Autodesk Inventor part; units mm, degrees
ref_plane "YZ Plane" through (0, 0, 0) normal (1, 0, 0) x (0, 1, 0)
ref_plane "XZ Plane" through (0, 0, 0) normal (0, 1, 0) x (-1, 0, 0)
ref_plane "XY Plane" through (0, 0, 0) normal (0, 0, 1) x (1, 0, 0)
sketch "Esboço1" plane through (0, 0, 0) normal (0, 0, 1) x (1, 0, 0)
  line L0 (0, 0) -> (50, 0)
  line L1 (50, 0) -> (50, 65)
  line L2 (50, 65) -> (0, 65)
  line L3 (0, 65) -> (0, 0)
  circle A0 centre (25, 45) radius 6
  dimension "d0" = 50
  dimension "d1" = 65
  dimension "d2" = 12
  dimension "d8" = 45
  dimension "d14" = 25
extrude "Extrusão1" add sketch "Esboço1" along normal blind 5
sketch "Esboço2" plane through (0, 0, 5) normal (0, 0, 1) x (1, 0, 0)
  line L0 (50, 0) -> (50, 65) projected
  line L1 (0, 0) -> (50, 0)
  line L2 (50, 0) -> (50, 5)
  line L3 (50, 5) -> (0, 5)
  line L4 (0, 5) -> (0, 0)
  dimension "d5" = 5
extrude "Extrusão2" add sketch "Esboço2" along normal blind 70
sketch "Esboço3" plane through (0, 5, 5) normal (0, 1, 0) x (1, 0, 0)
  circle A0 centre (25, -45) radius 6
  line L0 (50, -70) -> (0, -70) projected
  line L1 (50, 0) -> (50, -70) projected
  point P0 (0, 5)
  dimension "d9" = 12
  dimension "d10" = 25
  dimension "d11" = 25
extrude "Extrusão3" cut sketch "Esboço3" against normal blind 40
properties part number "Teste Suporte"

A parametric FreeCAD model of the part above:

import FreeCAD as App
import Part
import Sketcher


def add_polygon(sketch, points):
    """Adds a closed chain of lines whose ends are joined by coincident constraints."""
    first, n = sketch.GeometryCount, len(points)
    for a, b in zip(points, points[1:] + points[:1]):
        sketch.addGeometry(Part.LineSegment(App.Vector(*a, 0), App.Vector(*b, 0)), False)
    for i in range(n):
        sketch.addConstraint(Sketcher.Constraint("Coincident", first + i, 2, first + (i + 1) % n, 1))

doc = App.newDocument("Part")
body = doc.addObject("PartDesign::Body", "Body")

# Sketch on XY plane
sketch1 = body.newObject("Sketcher::SketchObject", "Sketch")
sketch1.AttachmentSupport = (doc.getObject("XY_Plane"), [""])
sketch1.MapMode = "FlatFace"
add_polygon(sketch1, [(0, 65), (0, 0), (50, 0), (50, 65)])  # lines 0-3
sketch1.addGeometry(Part.Circle(App.Vector(25, 45, 0), App.Vector(0, 0, 1), 6), False)  # 4
sketch1.addConstraint([
    Sketcher.Constraint("Vertical", 0),
    Sketcher.Constraint("Horizontal", 1),
    Sketcher.Constraint("Vertical", 2),
    Sketcher.Constraint("Horizontal", 3),
    Sketcher.Constraint("Coincident", 0, 2, -1, 1),
    Sketcher.Constraint("Diameter", 4, 12.0),
    Sketcher.Constraint("DistanceX", 1, 1, 1, 2, 50.0),
    Sketcher.Constraint("DistanceY", 0, 2, 0, 1, 65.0),
    Sketcher.Constraint("DistanceX", -1, 1, 4, 3, 25.0),
    Sketcher.Constraint("DistanceY", -1, 1, 4, 3, 45.0),
])
pad1 = body.newObject("PartDesign::Pad", "Pad")
pad1.Profile = sketch1
pad1.Length = 5

# Sketch on XY plane
sketch2 = body.newObject("Sketcher::SketchObject", "Sketch001")
sketch2.AttachmentSupport = (doc.getObject("XY_Plane"), [""])
sketch2.MapMode = "FlatFace"
sketch2.AttachmentOffset = App.Placement(App.Vector(0, 0, 5), App.Rotation())
add_polygon(sketch2, [(0, 0), (50, 0), (50, 5), (0, 5)])  # lines 0-3
sketch2.addConstraint([
    Sketcher.Constraint("Horizontal", 0),
    Sketcher.Constraint("Vertical", 1),
    Sketcher.Constraint("Horizontal", 2),
    Sketcher.Constraint("Vertical", 3),
    Sketcher.Constraint("Coincident", 3, 2, -1, 1),
    Sketcher.Constraint("DistanceY", 1, 1, 1, 2, 5.0),
    Sketcher.Constraint("DistanceX", 0, 1, 0, 2, 50.0),
])
pad2 = body.newObject("PartDesign::Pad", "Pad001")
pad2.Profile = sketch2
pad2.Length = 70

# Sketch on XZ plane
sketch3 = body.newObject("Sketcher::SketchObject", "Sketch002")
sketch3.AttachmentSupport = (doc.getObject("XZ_Plane"), [""])
sketch3.MapMode = "FlatFace"
sketch3.AttachmentOffset = App.Placement(App.Vector(0, 0, -5), App.Rotation())
sketch3.addGeometry(Part.Circle(App.Vector(25, 50, 0), App.Vector(0, 0, 1), 6), False)
sketch3.addConstraint([
    Sketcher.Constraint("Diameter", 0, 12.0),
    Sketcher.Constraint("DistanceX", -1, 1, 0, 3, 25.0),
    Sketcher.Constraint("DistanceY", -1, 1, 0, 3, 50.0),
])
pocket1 = body.newObject("PartDesign::Pocket", "Pocket")
pocket1.Profile = sketch3
pocket1.Length = 40
pocket1.Reversed = True

doc.recompute()
